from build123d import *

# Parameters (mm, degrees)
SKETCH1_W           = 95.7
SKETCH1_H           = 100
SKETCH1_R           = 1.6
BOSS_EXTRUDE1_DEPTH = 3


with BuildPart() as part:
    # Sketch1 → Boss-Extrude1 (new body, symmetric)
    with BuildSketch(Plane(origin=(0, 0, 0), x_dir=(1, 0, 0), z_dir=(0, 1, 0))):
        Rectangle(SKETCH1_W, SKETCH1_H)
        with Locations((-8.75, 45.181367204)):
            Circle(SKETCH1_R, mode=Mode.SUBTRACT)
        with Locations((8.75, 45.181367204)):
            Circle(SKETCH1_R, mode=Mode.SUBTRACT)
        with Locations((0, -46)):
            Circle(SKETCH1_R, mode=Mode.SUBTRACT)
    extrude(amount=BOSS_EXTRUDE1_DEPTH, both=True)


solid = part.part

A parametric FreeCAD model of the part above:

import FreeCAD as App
import Part
import Sketcher
from FreeCAD import Vector
Q = App.Units.Quantity


def add_polygon(sketch, points):
    """Adds a closed chain of lines whose ends are joined by coincident constraints."""
    first, n = sketch.GeometryCount, len(points)
    for a, b in zip(points, points[1:] + points[:1]):
        sketch.addGeometry(Part.LineSegment(App.Vector(*a, 0), App.Vector(*b, 0)), False)
    for i in range(n):
        sketch.addConstraint(Sketcher.Constraint("Coincident", first + i, 2, first + (i + 1) % n, 1))

doc = App.newDocument("Part")
body = doc.addObject("PartDesign::Body", "Body")

# Sketch on XZ plane
sketch1 = body.newObject("Sketcher::SketchObject", "Sketch")
sketch1.AttachmentSupport = (doc.getObject("XZ_Plane"), [""])
sketch1.MapMode = "FlatFace"
add_polygon(sketch1, [(-47.9, -50), (-47.9, 50), (47.9, 50), (47.9, -50)])  # lines 0-3
sketch1.addGeometry(Part.Circle(Vector(0, 46, 0), Vector(0, 0, 1), 1.6), False)  # 4
sketch1.addGeometry(Part.Circle(Vector(-8.8, -45.2, 0), Vector(0, 0, 1), 1.6), False)  # 5
sketch1.addGeometry(Part.Circle(Vector(8.8, -45.2, 0), Vector(0, 0, 1), 1.6), False)  # 6
sketch1.addConstraint(Sketcher.Constraint("Vertical", 0))
sketch1.addConstraint(Sketcher.Constraint("Horizontal", 1))
sketch1.addConstraint(Sketcher.Constraint("Vertical", 2))
sketch1.addConstraint(Sketcher.Constraint("Horizontal", 3))
sketch1.addConstraint(Sketcher.Constraint("Equal", 4, 5))
sketch1.addConstraint(Sketcher.Constraint("Equal", 5, 6))
sketch1.addConstraint(Sketcher.Constraint("Symmetric", 0, 2, 2, 2, -1, 1))
sketch1.addConstraint(Sketcher.Constraint("Symmetric", 5, 3, 6, 3, -2))
sketch1.addConstraint(Sketcher.Constraint("PointOnObject", 4, 3, -2))
sketch1.addConstraint(Sketcher.Constraint("Diameter", 4, Q("3.2 mm")))
sketch1.addConstraint(Sketcher.Constraint("DistanceY", 0, 1, 0, 2, Q("100 mm")))
sketch1.addConstraint(Sketcher.Constraint("DistanceX", 1, 1, 1, 2, Q("95.7 mm")))
sketch1.addConstraint(Sketcher.Constraint("DistanceY", -1, 1, 4, 3, Q("46 mm")))
sketch1.addConstraint(Sketcher.Constraint("DistanceX", 5, 3, 6, 3, Q("17.5 mm")))
sketch1.addConstraint(Sketcher.Constraint("DistanceY", 5, 3, -1, 1, Q("45.181367 mm")))
pad1 = body.newObject("PartDesign::Pad", "Pad")
pad1.Profile = sketch1
pad1.Length = 6
pad1.Midplane = True

doc.recompute()
